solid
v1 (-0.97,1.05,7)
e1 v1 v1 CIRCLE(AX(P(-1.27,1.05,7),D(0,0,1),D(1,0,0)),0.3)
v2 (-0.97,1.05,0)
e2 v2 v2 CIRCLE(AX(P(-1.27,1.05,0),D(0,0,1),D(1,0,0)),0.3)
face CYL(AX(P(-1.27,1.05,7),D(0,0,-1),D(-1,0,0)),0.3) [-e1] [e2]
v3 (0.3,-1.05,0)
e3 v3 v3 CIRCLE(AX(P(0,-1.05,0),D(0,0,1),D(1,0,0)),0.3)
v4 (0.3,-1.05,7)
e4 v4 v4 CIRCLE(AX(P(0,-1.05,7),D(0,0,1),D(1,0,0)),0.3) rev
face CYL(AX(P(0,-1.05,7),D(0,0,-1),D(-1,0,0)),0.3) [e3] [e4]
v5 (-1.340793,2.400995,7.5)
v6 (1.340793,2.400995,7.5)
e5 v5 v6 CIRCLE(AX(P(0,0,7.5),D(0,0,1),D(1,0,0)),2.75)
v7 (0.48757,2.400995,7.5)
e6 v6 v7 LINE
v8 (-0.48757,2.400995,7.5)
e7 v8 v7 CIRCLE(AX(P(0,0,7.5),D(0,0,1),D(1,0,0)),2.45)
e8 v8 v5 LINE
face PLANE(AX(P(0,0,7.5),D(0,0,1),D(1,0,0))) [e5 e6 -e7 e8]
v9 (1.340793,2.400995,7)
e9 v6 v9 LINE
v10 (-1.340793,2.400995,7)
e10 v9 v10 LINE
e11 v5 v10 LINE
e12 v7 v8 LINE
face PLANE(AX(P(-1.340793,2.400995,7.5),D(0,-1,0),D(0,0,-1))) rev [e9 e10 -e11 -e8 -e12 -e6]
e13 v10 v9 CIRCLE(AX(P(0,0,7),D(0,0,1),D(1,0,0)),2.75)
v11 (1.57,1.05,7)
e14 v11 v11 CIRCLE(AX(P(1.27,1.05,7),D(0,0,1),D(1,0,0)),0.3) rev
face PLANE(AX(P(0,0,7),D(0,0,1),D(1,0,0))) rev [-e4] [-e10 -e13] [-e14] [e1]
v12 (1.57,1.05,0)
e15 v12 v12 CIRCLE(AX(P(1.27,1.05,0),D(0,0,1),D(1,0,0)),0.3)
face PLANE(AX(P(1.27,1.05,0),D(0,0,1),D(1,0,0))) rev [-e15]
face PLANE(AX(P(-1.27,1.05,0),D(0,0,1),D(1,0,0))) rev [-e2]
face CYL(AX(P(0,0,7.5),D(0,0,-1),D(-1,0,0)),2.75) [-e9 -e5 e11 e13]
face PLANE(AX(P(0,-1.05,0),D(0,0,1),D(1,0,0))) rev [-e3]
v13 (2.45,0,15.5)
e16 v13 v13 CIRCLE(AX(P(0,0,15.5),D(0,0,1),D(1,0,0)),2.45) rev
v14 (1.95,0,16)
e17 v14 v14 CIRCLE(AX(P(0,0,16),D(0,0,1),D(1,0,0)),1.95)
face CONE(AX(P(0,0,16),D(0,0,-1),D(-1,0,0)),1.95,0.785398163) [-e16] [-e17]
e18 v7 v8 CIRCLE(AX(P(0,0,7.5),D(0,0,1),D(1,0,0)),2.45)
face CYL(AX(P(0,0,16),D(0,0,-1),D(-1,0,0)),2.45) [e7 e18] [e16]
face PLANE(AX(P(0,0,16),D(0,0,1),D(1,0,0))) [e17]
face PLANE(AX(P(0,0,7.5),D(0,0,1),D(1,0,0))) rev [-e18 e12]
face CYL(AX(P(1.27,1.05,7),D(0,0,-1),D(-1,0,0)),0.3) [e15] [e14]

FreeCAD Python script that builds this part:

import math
import FreeCAD as App
import Part
import Sketcher


def edges_at(feature, points):
    """Names of the edges that pass closest to the given points."""
    edges = feature.Shape.Edges
    near = lambda p: min(range(len(edges)), key=lambda i: edges[i].distToShape(Part.Vertex(*p))[0])
    return sorted({f"Edge{near(p) + 1}" for p in points})

doc = App.newDocument("Part")
params = doc.addObject("Spreadsheet::Sheet", "Params")
for row, (alias, value) in enumerate([
    ("sketch1_diameter", "0.6 mm"),
    ("pad1_length", "7 mm"),
    ("sketch2_diameter", "0.6 mm"),
    ("pad2_length", "7 mm"),
    ("sketch3_diameter", "0.6 mm"),
    ("pad3_length", "7 mm"),
    ("sketch4_radius", "2.75 mm"),
    ("pad4_length", "0.5 mm"),
    ("sketch5_diameter", "4.9 mm"),
    ("pad5_length", "8.5 mm"),
    ("chamfer_size", "0.5 mm"),
], start=1):
    params.set(f"A{row}", alias)
    params.set(f"B{row}", "=" + value)
    params.setAlias(f"B{row}", alias)

body = doc.addObject("PartDesign::Body", "Body")

# Sketch on XY plane
sketch1 = body.newObject("Sketcher::SketchObject", "Sketch")
sketch1.AttachmentSupport = (doc.getObject("XY_Plane"), [""])
sketch1.MapMode = "FlatFace"
sketch1.addGeometry(Part.Circle(App.Vector(-1.27, 1.05, 0), App.Vector(0, 0, 1), 0.3), False)
sketch1.addConstraint([
    Sketcher.Constraint("Diameter", 0, 0.6),
    Sketcher.Constraint("DistanceX", 0, 3, -1, 1, 1.27),
    Sketcher.Constraint("DistanceY", -1, 1, 0, 3, 1.05),
])
sketch1.setExpression("Constraints[0]", "Params.sketch1_diameter")
pad1 = body.newObject("PartDesign::Pad", "Pad")
pad1.Profile = sketch1
pad1.setExpression("Length", "Params.pad1_length")
body2 = doc.addObject("PartDesign::Body", "Body001")

# Sketch on XY plane
sketch2 = body2.newObject("Sketcher::SketchObject", "Sketch001")
sketch2.AttachmentSupport = (doc.getObject("XY_Plane001"), [""])
sketch2.MapMode = "FlatFace"
sketch2.addGeometry(Part.Circle(App.Vector(1.27, 1.05, 0), App.Vector(0, 0, 1), 0.3), False)
sketch2.addConstraint([
    Sketcher.Constraint("Diameter", 0, 0.6),
    Sketcher.Constraint("DistanceX", -1, 1, 0, 3, 1.27),
    Sketcher.Constraint("DistanceY", -1, 1, 0, 3, 1.05),
])
sketch2.setExpression("Constraints[0]", "Params.sketch2_diameter")
pad2 = body2.newObject("PartDesign::Pad", "Pad001")
pad2.Profile = sketch2
pad2.setExpression("Length", "Params.pad2_length")
body3 = doc.addObject("PartDesign::Body", "Body002")

# Sketch on XY plane
sketch3 = body3.newObject("Sketcher::SketchObject", "Sketch002")
sketch3.AttachmentSupport = (doc.getObject("XY_Plane002"), [""])
sketch3.MapMode = "FlatFace"
sketch3.addGeometry(Part.Circle(App.Vector(0, -1.05, 0), App.Vector(0, 0, 1), 0.3), False)
sketch3.addConstraint([
    Sketcher.Constraint("PointOnObject", 0, 3, -2),
    Sketcher.Constraint("Diameter", 0, 0.6),
    Sketcher.Constraint("DistanceY", 0, 3, -1, 1, 1.05),
])
sketch3.setExpression("Constraints[1]", "Params.sketch3_diameter")
pad3 = body3.newObject("PartDesign::Pad", "Pad002")
pad3.Profile = sketch3
pad3.setExpression("Length", "Params.pad3_length")
body.AllowCompound = True
doc.recompute()

boolean = body.newObject("PartDesign::Boolean", "Boolean")
boolean.Type = "Fuse"
boolean.addObjects([body2])
doc.recompute()

boolean2 = body.newObject("PartDesign::Boolean", "Boolean001")
boolean2.Type = "Fuse"
boolean2.addObjects([body3])

# Sketch on XY plane
sketch4 = body.newObject("Sketcher::SketchObject", "Sketch003")
sketch4.AttachmentSupport = (doc.getObject("XY_Plane"), [""])
sketch4.MapMode = "FlatFace"
sketch4.AttachmentOffset = App.Placement(App.Vector(0, 0, 7), App.Rotation())
sketch4.addGeometry([
    Part.LineSegment(App.Vector(1.340793, 2.400995, 0), App.Vector(-1.340793, 2.400995, 0)),
    Part.ArcOfCircle(Part.Circle(App.Vector(0, 0, 0), App.Vector(0, 0, 1), 2.75), math.radians(119.180394), math.radians(420.819606)),
], False)
sketch4.addConstraint([
    Sketcher.Constraint("Coincident", 0, 1, 1, 2),
    Sketcher.Constraint("Coincident", 1, 1, 0, 2),
    Sketcher.Constraint("Horizontal", 0),
    Sketcher.Constraint("Coincident", 1, 3, -1, 1),
    Sketcher.Constraint("Radius", 1, 2.75),
    Sketcher.Constraint("DistanceX", 0, 2, 0, 1, 2.681585),
])
sketch4.setExpression("Constraints[4]", "Params.sketch4_radius")
pad4 = body.newObject("PartDesign::Pad", "Pad003")
pad4.Profile = sketch4
pad4.setExpression("Length", "Params.pad4_length")

# Sketch on XY plane
sketch5 = body.newObject("Sketcher::SketchObject", "Sketch004")
sketch5.AttachmentSupport = (doc.getObject("XY_Plane"), [""])
sketch5.MapMode = "FlatFace"
sketch5.AttachmentOffset = App.Placement(App.Vector(0, 0, 7.5), App.Rotation())
sketch5.addGeometry(Part.Circle(App.Vector(0, 0, 0), App.Vector(0, 0, 1), 2.45), False)
sketch5.addConstraint([
    Sketcher.Constraint("Coincident", 0, 3, -1, 1),
    Sketcher.Constraint("Diameter", 0, 4.9),
])
sketch5.setExpression("Constraints[1]", "Params.sketch5_diameter")
pad5 = body.newObject("PartDesign::Pad", "Pad004")
pad5.Profile = sketch5
pad5.setExpression("Length", "Params.pad5_length")
doc.recompute()

chamfer = body.newObject("PartDesign::Chamfer", "Chamfer")
chamfer.Base = (pad5, edges_at(pad5, [(0.488, -2.401, 16)]))
chamfer.setExpression("Size", "Params.chamfer_size")

doc.recompute()
